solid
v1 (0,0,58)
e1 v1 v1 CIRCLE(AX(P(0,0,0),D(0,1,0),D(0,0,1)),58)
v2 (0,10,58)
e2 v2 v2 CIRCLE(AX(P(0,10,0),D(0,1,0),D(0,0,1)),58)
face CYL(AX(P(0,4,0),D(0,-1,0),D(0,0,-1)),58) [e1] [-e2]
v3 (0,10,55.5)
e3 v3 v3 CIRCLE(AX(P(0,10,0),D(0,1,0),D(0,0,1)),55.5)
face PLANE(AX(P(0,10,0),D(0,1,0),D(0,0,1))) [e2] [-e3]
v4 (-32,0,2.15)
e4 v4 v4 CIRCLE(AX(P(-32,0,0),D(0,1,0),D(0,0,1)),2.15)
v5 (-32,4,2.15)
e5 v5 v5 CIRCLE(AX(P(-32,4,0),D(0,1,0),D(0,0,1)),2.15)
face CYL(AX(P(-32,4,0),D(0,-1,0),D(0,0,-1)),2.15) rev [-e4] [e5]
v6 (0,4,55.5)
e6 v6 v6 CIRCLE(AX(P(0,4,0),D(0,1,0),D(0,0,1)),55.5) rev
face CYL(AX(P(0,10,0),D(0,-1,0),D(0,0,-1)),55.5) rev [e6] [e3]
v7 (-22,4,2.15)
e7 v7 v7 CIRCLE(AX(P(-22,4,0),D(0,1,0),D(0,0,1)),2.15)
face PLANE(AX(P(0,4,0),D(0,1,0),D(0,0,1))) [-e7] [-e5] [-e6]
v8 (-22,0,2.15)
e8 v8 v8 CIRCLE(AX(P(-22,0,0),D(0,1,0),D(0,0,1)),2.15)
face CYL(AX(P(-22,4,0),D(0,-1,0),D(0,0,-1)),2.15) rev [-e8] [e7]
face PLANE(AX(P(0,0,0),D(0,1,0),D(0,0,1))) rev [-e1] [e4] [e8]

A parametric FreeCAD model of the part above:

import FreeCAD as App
import Part
import Sketcher

V = App.Vector

doc = App.newDocument("Part")
body = doc.addObject("PartDesign::Body", "Body")

# Sketch on XZ plane
sketch1 = body.newObject("Sketcher::SketchObject", "Sketch")
sketch1.AttachmentSupport = (doc.getObject("XZ_Plane"), [""])
sketch1.MapMode = "FlatFace"
sketch1.addGeometry(Part.Circle(V(0, 0, 0), V(0, 0, 1), 58), False)
sketch1.addConstraint([
    Sketcher.Constraint("Coincident", 0, 3, -1, 1),
    Sketcher.Constraint("Diameter", 0, 116.0),
])
pad1 = body.newObject("PartDesign::Pad", "Pad")
pad1.Profile = sketch1
pad1.Length = 4
pad1.Reversed = True

# Sketch on XZ plane
sketch2 = body.newObject("Sketcher::SketchObject", "Sketch001")
sketch2.AttachmentSupport = (doc.getObject("XZ_Plane"), [""])
sketch2.MapMode = "FlatFace"
sketch2.addGeometry([
    Part.Circle(V(0, 0, 0), V(0, 0, 1), 58),
    Part.Circle(V(0, 0, 0), V(0, 0, 1), 55.5),
], False)
sketch2.addConstraint([
    Sketcher.Constraint("Coincident", 0, 3, -1, 1),
    Sketcher.Constraint("Coincident", 1, 3, -1, 1),
    Sketcher.Constraint("Diameter", 0, 116.0),
    Sketcher.Constraint("Diameter", 1, 111.0),
])
pad2 = body.newObject("PartDesign::Pad", "Pad001")
pad2.Profile = sketch2
pad2.Length = 10
pad2.Reversed = True

# Sketch on XZ plane
sketch3 = body.newObject("Sketcher::SketchObject", "Sketch002")
sketch3.AttachmentSupport = (doc.getObject("XZ_Plane"), [""])
sketch3.MapMode = "FlatFace"
sketch3.addGeometry([
    Part.Circle(V(-22, 0, 0), V(0, 0, 1), 2.15),
    Part.Circle(V(-32, 0, 0), V(0, 0, 1), 2.15),
], False)
sketch3.addConstraint([
    Sketcher.Constraint("Equal", 0, 1),
    Sketcher.Constraint("PointOnObject", 0, 3, -1),
    Sketcher.Constraint("PointOnObject", 1, 3, -1),
    Sketcher.Constraint("Diameter", 0, 4.3),
    Sketcher.Constraint("DistanceX", 0, 3, -1, 1, 22.0),
    Sketcher.Constraint("DistanceX", 1, 3, -1, 1, 32.0),
])
pocket1 = body.newObject("PartDesign::Pocket", "Pocket")
pocket1.Profile = sketch3
pocket1.Length = 4

doc.recompute()
